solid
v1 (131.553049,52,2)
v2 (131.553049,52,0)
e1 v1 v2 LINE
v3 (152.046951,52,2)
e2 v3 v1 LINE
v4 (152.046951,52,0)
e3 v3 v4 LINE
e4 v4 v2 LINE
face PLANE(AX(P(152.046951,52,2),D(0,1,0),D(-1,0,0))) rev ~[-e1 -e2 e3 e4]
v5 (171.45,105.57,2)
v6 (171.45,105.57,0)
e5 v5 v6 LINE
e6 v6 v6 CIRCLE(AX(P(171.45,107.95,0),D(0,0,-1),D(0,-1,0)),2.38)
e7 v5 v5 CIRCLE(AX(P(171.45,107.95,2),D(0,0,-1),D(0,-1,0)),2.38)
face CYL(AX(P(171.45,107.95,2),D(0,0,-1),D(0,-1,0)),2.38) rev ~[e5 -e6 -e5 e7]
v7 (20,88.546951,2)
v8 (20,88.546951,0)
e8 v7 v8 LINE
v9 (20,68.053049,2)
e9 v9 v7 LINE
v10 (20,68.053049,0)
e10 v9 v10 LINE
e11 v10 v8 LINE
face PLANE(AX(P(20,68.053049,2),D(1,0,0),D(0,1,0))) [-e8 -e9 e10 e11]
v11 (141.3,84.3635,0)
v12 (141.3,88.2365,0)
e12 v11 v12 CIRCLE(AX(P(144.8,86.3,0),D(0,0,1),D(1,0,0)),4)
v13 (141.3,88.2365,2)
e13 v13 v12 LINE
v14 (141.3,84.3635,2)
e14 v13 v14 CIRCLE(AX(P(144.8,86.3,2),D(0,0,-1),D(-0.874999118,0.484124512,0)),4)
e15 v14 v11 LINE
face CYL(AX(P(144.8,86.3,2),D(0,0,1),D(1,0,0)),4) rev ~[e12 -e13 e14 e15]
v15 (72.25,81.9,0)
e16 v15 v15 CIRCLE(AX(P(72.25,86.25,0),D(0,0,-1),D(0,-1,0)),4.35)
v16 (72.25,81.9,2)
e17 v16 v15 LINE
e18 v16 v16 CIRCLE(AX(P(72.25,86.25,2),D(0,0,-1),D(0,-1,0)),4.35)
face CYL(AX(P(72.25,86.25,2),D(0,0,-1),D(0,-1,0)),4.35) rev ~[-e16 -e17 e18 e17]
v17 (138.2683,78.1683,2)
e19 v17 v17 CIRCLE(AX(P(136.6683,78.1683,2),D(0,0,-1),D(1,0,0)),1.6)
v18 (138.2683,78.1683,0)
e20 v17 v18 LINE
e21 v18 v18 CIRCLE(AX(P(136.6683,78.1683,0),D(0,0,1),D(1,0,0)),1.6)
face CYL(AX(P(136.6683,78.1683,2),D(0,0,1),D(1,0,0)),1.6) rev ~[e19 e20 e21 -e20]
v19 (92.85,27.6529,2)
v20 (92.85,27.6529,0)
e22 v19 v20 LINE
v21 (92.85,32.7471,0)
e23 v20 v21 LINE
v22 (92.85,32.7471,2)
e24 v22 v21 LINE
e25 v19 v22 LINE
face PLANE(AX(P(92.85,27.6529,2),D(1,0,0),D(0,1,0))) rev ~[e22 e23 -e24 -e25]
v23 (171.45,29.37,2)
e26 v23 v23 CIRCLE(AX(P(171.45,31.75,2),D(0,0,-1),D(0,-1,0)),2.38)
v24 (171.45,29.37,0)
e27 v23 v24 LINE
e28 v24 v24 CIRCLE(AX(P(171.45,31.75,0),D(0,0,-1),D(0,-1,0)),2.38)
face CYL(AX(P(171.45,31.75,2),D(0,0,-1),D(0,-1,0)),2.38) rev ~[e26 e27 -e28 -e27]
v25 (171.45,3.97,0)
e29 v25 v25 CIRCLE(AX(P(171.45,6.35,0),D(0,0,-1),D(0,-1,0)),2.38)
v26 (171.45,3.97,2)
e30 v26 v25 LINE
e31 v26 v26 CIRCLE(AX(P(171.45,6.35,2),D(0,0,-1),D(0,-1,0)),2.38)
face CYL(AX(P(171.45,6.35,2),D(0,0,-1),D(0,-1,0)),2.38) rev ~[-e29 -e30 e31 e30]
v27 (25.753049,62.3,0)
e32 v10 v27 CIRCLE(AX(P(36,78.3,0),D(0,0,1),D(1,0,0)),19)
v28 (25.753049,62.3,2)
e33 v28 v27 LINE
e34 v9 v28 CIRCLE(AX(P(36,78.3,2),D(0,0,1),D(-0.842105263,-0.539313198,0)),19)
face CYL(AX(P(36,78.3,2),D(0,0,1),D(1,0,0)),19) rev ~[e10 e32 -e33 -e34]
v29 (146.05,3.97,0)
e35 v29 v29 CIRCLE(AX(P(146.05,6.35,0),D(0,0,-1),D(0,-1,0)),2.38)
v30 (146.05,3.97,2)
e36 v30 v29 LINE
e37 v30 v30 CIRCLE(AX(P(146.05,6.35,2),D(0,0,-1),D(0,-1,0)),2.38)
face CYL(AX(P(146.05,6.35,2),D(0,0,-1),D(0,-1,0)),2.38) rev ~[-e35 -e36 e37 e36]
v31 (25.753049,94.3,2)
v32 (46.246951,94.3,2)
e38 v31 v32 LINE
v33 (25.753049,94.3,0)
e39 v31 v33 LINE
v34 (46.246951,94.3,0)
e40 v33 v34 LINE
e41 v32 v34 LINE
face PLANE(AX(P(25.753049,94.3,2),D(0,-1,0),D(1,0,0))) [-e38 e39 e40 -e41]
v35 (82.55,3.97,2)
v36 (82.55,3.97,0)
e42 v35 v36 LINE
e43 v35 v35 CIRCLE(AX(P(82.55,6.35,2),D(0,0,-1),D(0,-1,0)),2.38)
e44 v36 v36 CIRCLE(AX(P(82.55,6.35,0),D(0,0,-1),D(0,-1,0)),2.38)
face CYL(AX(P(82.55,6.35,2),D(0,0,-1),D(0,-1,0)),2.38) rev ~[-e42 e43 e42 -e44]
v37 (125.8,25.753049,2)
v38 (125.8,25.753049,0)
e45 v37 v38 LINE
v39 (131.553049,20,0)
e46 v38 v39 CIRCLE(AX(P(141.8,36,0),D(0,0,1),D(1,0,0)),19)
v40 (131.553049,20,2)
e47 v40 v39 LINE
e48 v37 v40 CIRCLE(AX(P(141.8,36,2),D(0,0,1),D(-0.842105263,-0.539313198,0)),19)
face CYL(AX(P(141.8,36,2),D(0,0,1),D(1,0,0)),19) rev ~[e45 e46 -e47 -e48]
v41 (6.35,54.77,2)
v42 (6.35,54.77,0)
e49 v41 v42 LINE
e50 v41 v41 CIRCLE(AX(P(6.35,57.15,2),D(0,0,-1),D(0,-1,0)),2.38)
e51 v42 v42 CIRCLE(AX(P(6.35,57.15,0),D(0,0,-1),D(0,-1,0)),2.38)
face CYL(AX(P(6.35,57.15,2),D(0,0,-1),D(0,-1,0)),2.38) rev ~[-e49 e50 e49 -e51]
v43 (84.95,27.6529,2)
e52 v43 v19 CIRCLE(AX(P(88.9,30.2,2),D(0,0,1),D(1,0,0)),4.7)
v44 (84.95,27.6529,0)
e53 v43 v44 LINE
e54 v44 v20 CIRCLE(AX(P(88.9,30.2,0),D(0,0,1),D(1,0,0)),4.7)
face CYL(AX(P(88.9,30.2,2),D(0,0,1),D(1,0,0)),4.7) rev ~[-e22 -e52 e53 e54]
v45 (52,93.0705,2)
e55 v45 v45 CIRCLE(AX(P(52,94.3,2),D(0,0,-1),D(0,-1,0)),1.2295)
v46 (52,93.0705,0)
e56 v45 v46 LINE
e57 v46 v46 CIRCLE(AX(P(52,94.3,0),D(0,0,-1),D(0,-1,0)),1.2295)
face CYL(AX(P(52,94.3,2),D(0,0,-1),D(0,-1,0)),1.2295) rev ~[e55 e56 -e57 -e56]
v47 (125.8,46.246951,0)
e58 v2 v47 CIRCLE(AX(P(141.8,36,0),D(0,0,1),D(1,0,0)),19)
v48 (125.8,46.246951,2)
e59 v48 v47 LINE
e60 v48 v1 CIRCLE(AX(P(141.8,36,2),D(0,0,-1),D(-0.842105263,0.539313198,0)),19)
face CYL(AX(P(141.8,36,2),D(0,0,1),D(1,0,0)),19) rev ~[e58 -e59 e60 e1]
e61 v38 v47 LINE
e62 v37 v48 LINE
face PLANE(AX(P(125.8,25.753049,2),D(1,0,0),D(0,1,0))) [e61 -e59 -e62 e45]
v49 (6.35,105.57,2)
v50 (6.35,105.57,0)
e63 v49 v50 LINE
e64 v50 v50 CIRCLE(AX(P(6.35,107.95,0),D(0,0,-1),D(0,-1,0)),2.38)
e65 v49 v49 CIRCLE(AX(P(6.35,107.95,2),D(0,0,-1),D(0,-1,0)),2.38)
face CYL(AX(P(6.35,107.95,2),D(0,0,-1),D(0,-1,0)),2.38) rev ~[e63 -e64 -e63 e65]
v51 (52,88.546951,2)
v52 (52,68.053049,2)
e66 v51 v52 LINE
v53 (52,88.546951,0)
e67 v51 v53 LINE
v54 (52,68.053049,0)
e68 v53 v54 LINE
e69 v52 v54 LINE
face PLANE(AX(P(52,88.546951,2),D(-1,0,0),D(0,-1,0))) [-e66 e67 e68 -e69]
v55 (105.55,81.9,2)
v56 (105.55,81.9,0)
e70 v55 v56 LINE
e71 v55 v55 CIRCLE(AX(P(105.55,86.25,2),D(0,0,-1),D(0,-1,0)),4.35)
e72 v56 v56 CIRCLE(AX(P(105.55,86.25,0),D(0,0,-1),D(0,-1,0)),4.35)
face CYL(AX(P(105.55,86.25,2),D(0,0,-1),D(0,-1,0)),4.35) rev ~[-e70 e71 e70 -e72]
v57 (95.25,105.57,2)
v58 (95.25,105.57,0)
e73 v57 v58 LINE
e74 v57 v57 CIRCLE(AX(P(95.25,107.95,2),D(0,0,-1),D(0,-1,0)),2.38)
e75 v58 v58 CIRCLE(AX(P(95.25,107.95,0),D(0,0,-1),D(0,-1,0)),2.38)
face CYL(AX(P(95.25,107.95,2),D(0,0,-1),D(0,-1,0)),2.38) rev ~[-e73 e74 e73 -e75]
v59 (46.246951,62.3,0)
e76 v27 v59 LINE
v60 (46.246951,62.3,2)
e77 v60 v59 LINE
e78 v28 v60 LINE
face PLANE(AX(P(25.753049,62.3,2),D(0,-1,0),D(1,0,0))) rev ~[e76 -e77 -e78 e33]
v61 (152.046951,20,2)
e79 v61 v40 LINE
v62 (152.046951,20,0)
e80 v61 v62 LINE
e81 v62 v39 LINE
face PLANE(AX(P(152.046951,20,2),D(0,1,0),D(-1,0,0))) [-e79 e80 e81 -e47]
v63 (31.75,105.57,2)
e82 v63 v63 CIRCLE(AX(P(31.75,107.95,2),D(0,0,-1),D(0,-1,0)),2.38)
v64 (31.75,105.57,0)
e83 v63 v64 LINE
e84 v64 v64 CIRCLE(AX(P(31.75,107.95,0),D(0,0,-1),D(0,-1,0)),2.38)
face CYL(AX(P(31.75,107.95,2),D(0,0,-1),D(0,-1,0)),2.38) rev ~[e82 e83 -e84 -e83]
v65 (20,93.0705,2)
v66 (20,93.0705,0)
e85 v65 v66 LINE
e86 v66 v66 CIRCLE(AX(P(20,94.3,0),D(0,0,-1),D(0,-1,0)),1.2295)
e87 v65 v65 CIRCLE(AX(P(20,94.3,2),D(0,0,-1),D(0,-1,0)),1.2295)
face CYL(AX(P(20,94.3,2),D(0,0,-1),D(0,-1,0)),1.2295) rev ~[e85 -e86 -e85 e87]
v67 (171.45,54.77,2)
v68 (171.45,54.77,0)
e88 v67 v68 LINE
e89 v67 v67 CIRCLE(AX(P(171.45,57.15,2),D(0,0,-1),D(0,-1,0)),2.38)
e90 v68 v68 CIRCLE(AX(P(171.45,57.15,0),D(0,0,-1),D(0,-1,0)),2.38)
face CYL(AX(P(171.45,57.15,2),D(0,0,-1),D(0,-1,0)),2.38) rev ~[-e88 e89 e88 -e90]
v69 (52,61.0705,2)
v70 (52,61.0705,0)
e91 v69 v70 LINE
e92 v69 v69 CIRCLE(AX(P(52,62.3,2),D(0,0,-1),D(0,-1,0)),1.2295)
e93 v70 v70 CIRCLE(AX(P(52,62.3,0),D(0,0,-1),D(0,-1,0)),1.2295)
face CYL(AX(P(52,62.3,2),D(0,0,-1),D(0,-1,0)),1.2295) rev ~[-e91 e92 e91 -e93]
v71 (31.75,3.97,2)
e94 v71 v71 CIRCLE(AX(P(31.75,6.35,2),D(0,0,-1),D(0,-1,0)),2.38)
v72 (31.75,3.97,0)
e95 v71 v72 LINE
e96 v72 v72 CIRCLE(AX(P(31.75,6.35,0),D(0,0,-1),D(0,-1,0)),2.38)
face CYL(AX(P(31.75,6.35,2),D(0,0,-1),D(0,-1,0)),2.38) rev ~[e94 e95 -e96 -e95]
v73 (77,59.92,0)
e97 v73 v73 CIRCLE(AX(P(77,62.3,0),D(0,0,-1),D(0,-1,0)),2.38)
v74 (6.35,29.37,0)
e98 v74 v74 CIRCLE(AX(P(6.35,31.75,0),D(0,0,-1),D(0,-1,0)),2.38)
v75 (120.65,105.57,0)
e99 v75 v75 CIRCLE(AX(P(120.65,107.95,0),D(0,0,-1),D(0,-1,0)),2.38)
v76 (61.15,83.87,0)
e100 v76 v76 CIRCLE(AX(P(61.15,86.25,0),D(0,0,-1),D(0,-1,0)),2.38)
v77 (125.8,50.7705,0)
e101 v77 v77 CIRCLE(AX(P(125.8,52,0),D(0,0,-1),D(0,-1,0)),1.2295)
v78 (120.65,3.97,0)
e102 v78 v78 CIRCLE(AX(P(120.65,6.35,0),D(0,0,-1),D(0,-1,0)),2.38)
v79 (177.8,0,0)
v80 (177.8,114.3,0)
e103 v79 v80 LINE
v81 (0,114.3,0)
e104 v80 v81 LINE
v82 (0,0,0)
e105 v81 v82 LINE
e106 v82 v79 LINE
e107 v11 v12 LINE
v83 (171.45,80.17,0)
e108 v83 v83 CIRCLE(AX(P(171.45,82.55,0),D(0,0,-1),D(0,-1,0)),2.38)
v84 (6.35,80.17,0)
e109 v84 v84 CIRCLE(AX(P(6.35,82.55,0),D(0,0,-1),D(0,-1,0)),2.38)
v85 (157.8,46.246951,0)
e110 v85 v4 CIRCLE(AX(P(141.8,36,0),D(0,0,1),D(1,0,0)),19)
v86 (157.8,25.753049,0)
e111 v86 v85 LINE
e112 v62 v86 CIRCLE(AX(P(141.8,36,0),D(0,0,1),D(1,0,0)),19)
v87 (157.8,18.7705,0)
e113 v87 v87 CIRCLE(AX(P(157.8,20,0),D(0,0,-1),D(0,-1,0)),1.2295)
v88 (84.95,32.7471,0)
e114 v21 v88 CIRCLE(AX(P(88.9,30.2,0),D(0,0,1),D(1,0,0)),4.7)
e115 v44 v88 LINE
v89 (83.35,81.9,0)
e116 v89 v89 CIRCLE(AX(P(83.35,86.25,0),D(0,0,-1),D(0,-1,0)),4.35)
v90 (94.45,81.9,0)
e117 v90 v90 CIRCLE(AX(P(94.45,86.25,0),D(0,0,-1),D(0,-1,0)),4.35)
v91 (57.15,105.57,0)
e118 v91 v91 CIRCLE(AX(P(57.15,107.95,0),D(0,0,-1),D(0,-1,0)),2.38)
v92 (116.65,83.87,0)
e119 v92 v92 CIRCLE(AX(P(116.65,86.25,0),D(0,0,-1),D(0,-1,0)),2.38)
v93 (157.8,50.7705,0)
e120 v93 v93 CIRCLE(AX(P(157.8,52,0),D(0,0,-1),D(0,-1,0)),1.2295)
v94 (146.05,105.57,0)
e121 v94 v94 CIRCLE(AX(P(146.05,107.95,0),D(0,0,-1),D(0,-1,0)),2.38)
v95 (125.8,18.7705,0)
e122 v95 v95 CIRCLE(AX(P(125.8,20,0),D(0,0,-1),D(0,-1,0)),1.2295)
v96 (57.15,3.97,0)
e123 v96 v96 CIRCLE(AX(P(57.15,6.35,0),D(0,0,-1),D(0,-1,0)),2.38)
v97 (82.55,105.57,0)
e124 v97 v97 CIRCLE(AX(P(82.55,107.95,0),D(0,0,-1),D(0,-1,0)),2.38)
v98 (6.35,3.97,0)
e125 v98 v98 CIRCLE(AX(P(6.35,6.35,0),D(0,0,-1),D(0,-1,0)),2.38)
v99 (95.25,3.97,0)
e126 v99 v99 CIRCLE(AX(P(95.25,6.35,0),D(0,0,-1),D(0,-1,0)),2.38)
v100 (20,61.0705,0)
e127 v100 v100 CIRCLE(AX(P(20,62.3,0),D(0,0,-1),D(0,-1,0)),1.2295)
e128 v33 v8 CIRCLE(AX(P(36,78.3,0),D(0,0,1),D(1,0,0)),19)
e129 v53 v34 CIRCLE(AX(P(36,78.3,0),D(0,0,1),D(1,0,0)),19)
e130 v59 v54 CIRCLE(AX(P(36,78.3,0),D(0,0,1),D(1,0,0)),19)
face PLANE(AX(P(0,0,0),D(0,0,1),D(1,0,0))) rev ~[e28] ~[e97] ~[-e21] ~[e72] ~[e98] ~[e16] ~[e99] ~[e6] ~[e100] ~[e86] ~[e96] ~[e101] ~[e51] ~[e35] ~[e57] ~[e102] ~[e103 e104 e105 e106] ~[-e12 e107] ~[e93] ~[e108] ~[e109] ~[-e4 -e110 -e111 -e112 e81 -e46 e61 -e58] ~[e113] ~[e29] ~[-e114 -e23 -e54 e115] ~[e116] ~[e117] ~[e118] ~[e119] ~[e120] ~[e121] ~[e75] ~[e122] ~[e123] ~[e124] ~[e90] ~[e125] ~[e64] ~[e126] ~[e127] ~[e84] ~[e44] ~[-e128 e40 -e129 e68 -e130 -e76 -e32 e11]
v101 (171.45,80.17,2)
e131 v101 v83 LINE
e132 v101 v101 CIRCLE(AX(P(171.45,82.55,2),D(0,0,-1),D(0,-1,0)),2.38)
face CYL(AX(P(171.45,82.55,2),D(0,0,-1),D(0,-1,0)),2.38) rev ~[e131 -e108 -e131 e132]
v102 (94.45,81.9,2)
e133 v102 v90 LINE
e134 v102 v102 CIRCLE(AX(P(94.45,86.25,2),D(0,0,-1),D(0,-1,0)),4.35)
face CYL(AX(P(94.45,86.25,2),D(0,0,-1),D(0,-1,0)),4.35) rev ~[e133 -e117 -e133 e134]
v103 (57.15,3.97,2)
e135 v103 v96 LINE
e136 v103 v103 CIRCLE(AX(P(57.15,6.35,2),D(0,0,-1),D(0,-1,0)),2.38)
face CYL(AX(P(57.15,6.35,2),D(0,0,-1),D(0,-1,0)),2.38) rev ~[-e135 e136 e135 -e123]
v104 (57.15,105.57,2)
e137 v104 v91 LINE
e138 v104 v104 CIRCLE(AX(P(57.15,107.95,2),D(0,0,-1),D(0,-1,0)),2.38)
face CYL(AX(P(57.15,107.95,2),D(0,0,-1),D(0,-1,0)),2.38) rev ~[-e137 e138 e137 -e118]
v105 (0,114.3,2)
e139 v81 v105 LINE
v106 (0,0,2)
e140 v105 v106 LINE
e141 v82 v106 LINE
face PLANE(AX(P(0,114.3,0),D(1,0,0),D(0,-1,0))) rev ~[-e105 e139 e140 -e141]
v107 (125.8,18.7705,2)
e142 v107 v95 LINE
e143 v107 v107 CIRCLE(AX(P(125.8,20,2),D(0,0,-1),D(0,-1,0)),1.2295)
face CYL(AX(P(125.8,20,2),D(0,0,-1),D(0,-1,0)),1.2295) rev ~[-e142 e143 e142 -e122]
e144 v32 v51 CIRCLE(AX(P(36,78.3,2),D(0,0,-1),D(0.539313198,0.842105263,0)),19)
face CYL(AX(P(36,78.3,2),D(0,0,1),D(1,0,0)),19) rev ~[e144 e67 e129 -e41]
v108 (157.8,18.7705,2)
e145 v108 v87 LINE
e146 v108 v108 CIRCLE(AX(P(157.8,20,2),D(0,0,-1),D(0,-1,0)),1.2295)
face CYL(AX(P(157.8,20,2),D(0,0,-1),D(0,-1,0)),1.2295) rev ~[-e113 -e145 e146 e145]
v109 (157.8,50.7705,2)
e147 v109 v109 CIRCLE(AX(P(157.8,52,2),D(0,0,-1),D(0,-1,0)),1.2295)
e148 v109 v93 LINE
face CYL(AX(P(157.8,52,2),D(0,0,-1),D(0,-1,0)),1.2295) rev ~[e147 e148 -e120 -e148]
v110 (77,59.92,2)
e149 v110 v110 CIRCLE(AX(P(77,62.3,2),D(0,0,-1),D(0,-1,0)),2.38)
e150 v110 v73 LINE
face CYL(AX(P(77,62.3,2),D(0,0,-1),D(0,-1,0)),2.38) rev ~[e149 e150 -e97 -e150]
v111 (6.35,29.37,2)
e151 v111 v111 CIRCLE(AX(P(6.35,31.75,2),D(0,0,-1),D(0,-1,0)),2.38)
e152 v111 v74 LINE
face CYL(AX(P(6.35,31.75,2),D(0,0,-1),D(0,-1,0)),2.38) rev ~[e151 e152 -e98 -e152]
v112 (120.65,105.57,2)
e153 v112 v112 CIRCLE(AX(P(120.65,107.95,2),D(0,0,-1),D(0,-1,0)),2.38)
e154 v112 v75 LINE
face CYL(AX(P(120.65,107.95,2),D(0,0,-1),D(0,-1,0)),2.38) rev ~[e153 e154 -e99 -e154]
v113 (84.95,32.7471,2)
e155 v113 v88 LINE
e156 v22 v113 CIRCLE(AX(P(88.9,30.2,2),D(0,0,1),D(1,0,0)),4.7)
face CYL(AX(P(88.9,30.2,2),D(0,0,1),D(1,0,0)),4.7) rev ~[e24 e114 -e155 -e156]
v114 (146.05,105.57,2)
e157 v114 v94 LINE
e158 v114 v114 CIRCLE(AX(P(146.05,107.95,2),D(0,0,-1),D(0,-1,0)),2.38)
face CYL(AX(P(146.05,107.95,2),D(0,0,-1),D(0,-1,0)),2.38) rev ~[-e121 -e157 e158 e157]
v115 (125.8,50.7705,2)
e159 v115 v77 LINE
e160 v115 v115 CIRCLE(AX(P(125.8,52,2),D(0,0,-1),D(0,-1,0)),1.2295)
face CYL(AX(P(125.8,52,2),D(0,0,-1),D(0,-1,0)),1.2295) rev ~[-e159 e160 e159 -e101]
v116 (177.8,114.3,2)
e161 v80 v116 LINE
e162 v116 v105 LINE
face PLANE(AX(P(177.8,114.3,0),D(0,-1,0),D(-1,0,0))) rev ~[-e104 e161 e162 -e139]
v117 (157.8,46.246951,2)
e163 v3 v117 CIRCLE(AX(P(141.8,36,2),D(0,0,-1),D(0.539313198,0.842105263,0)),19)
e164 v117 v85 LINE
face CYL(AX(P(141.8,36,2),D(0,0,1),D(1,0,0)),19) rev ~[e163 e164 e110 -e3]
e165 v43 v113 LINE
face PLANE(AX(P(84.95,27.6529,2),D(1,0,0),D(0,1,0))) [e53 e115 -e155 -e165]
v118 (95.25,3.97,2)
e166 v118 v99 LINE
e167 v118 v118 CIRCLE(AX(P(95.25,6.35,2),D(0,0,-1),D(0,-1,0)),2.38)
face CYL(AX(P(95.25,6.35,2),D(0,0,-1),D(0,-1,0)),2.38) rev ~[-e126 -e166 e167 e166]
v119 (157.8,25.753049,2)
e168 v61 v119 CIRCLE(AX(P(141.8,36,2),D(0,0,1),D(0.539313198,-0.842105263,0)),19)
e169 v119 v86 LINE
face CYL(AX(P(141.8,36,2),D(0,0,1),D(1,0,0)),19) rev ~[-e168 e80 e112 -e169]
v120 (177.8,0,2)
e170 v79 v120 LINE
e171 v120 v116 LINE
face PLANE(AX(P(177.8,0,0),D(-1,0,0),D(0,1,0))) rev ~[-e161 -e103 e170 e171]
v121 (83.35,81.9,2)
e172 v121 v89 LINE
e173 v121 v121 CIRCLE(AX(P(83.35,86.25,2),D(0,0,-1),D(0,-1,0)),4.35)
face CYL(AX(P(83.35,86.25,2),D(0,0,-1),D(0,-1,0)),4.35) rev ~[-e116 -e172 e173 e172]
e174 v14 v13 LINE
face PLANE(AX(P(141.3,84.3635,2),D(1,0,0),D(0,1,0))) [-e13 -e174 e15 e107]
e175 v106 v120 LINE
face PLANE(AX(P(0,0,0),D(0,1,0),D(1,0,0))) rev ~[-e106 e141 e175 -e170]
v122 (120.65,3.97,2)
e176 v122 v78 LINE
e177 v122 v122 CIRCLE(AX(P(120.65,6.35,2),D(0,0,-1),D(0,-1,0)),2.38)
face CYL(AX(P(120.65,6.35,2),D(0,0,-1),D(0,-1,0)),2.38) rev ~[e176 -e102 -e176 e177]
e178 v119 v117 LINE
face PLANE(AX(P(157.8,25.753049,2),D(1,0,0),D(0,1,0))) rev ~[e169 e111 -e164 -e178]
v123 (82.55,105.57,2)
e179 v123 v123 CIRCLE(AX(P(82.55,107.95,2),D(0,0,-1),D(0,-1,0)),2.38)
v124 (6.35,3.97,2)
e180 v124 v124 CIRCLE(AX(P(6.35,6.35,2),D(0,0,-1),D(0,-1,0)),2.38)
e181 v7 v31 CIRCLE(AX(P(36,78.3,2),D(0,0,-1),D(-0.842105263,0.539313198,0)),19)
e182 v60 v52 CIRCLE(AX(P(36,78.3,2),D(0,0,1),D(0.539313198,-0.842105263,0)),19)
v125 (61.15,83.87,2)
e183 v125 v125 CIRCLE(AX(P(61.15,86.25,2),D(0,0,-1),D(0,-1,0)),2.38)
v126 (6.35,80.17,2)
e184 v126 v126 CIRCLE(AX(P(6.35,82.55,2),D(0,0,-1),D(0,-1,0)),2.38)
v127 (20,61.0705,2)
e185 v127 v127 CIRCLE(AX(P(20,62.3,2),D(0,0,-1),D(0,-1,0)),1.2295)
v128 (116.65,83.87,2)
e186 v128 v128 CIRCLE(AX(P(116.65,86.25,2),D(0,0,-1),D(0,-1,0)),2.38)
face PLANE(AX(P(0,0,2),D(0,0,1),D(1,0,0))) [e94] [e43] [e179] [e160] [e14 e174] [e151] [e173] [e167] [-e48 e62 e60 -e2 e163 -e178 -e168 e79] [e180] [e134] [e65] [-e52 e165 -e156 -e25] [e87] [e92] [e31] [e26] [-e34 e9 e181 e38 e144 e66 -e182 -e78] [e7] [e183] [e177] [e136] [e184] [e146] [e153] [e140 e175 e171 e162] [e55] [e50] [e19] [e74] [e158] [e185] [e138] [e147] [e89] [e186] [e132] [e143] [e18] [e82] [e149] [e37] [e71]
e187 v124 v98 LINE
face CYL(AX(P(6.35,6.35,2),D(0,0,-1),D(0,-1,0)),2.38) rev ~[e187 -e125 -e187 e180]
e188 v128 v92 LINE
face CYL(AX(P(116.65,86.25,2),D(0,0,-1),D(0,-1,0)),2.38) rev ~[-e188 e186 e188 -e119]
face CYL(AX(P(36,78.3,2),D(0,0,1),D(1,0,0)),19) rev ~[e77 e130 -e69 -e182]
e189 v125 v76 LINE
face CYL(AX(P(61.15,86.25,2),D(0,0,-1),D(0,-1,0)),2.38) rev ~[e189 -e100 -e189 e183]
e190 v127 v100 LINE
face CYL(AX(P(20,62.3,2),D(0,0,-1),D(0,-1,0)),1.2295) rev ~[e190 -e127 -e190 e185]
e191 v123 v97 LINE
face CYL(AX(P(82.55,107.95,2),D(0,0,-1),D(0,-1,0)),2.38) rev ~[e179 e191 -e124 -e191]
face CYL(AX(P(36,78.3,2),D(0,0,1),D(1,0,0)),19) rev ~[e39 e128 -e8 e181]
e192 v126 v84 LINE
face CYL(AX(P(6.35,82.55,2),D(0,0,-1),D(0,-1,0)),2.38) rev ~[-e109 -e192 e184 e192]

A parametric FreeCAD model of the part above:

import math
import FreeCAD as App
import Part
import Sketcher
Q = App.Units.Quantity

doc = App.newDocument("Part")
params = doc.addObject("Spreadsheet::Sheet", "Params")
for row, (alias, value) in enumerate([
    ("sketch1_width", "177.8 mm"),
    ("sketch1_height", "114.3 mm"),
    ("pad1_length", "2 mm"),
    ("sketch2_diameter", "4.76 mm"),
    ("hole_diameter", "4.76 mm"),
    ("sketch3_diameter", "8.7 mm"),
    ("hole2_diameter", "8.7 mm"),
    ("sketch4_diameter", "4.76 mm"),
    ("hole3_diameter", "4.76 mm"),
    ("sketch5_radius", "4.7 mm"),
    ("sketch6_radius", "4 mm"),
    ("sketch6_diameter", "3.2 mm"),
    ("hole4_diameter", "2.459 mm"),
    ("hole5_diameter", "2.459 mm"),
    ("sketch9_diameter", "4.76 mm"),
    ("hole6_diameter", "4.76 mm"),
    ("sketch10_radius", "19 mm"),
    ("pocket3_length", "10 mm"),
], start=1):
    params.set(f"A{row}", alias)
    params.set(f"B{row}", "=" + value)
    params.setAlias(f"B{row}", alias)

body = doc.addObject("PartDesign::Body", "Body")

sketch1 = body.newObject("Sketcher::SketchObject", "Sketch")
sketch1.AttachmentSupport = (doc.getObject("XY_Plane"), [""])
sketch1.MapMode = "FlatFace"
sketch1.addGeometry([
    Part.LineSegment(App.Vector(0, 114.3, 0), App.Vector(0, 0, 0)),
    Part.LineSegment(App.Vector(0, 0, 0), App.Vector(177.8, 0, 0)),
    Part.LineSegment(App.Vector(177.8, 0, 0), App.Vector(177.8, 114.3, 0)),
    Part.LineSegment(App.Vector(177.8, 114.3, 0), App.Vector(0, 114.3, 0)),
], False)
sketch1.addConstraint([
    Sketcher.Constraint("Coincident", 0, 2, 1, 1),
    Sketcher.Constraint("Coincident", 1, 2, 2, 1),
    Sketcher.Constraint("Coincident", 2, 2, 3, 1),
    Sketcher.Constraint("Coincident", 3, 2, 0, 1),
    Sketcher.Constraint("Vertical", 0),
    Sketcher.Constraint("Horizontal", 1),
    Sketcher.Constraint("Vertical", 2),
    Sketcher.Constraint("Horizontal", 3),
    Sketcher.Constraint("Coincident", 0, 2, -1, 1),
    Sketcher.Constraint("DistanceX", 1, 1, 1, 2, Q("177.8 mm")),
    Sketcher.Constraint("DistanceY", 0, 2, 0, 1, Q("114.3 mm")),
])
sketch1.setExpression("Constraints[9]", "Params.sketch1_width")
sketch1.setExpression("Constraints[10]", "Params.sketch1_height")
pad1 = body.newObject("PartDesign::Pad", "Pad")
pad1.Profile = sketch1
pad1.setExpression("Length", "Params.pad1_length")

sketch2 = body.newObject("Sketcher::SketchObject", "Sketch001")
sketch2.AttachmentSupport = (doc.getObject("XY_Plane"), [""])
sketch2.MapMode = "FlatFace"
sketch2.AttachmentOffset = App.Placement(App.Vector(0, 0, 2), App.Rotation())
sketch2.addGeometry([
    Part.Circle(App.Vector(6.35, 107.95, 0), App.Vector(0, 0, 1), 2.38),
    Part.Circle(App.Vector(6.35, 82.55, 0), App.Vector(0, 0, 1), 2.38),
    Part.Circle(App.Vector(6.35, 57.15, 0), App.Vector(0, 0, 1), 2.38),
    Part.Circle(App.Vector(6.35, 31.75, 0), App.Vector(0, 0, 1), 2.38),
    Part.Circle(App.Vector(6.35, 6.35, 0), App.Vector(0, 0, 1), 2.38),
    Part.Circle(App.Vector(31.75, 6.35, 0), App.Vector(0, 0, 1), 2.38),
    Part.Circle(App.Vector(57.15, 6.35, 0), App.Vector(0, 0, 1), 2.38),
    Part.Circle(App.Vector(82.55, 6.35, 0), App.Vector(0, 0, 1), 2.38),
    Part.Circle(App.Vector(95.25, 6.35, 0), App.Vector(0, 0, 1), 2.38),
    Part.Circle(App.Vector(146.05, 6.35, 0), App.Vector(0, 0, 1), 2.38),
    Part.Circle(App.Vector(120.65, 6.35, 0), App.Vector(0, 0, 1), 2.38),
    Part.Circle(App.Vector(171.45, 6.35, 0), App.Vector(0, 0, 1), 2.38),
    Part.Circle(App.Vector(171.45, 31.75, 0), App.Vector(0, 0, 1), 2.38),
    Part.Circle(App.Vector(171.45, 57.15, 0), App.Vector(0, 0, 1), 2.38),
    Part.Circle(App.Vector(171.45, 82.55, 0), App.Vector(0, 0, 1), 2.38),
    Part.Circle(App.Vector(171.45, 107.95, 0), App.Vector(0, 0, 1), 2.38),
    Part.Circle(App.Vector(120.65, 107.95, 0), App.Vector(0, 0, 1), 2.38),
    Part.Circle(App.Vector(146.05, 107.95, 0), App.Vector(0, 0, 1), 2.38),
    Part.Circle(App.Vector(95.25, 107.95, 0), App.Vector(0, 0, 1), 2.38),
    Part.Circle(App.Vector(82.55, 107.95, 0), App.Vector(0, 0, 1), 2.38),
    Part.Circle(App.Vector(57.15, 107.95, 0), App.Vector(0, 0, 1), 2.38),
    Part.Circle(App.Vector(31.75, 107.95, 0), App.Vector(0, 0, 1), 2.38),
], False)
sketch2.addConstraint([
    Sketcher.Constraint("Equal", 0, 1),
    Sketcher.Constraint("Equal", 1, 2),
    Sketcher.Constraint("Equal", 2, 3),
    Sketcher.Constraint("Equal", 3, 4),
    Sketcher.Constraint("Equal", 4, 5),
    Sketcher.Constraint("Equal", 5, 6),
    Sketcher.Constraint("Equal", 6, 7),
    Sketcher.Constraint("Equal", 7, 8),
    Sketcher.Constraint("Equal", 8, 9),
    Sketcher.Constraint("Equal", 9, 10),
    Sketcher.Constraint("Equal", 10, 11),
    Sketcher.Constraint("Equal", 11, 12),
    Sketcher.Constraint("Equal", 12, 13),
    Sketcher.Constraint("Equal", 13, 14),
    Sketcher.Constraint("Equal", 14, 15),
    Sketcher.Constraint("Equal", 15, 16),
    Sketcher.Constraint("Equal", 16, 17),
    Sketcher.Constraint("Equal", 17, 18),
    Sketcher.Constraint("Equal", 18, 19),
    Sketcher.Constraint("Equal", 19, 20),
    Sketcher.Constraint("Equal", 20, 21),
    Sketcher.Constraint("Horizontal", 4, 3, 5, 3),
    Sketcher.Constraint("Horizontal", 5, 3, 6, 3),
    Sketcher.Constraint("Horizontal", 6, 3, 7, 3),
    Sketcher.Constraint("Horizontal", 7, 3, 8, 3),
    Sketcher.Constraint("Horizontal", 8, 3, 9, 3),
    Sketcher.Constraint("Horizontal", 9, 3, 10, 3),
    Sketcher.Constraint("Horizontal", 10, 3, 11, 3),
    Sketcher.Constraint("Horizontal", 3, 3, 12, 3),
    Sketcher.Constraint("Horizontal", 2, 3, 13, 3),
    Sketcher.Constraint("Horizontal", 1, 3, 14, 3),
    Sketcher.Constraint("Horizontal", 0, 3, 15, 3),
    Sketcher.Constraint("Horizontal", 15, 3, 16, 3),
    Sketcher.Constraint("Horizontal", 16, 3, 17, 3),
    Sketcher.Constraint("Horizontal", 17, 3, 18, 3),
    Sketcher.Constraint("Horizontal", 18, 3, 19, 3),
    Sketcher.Constraint("Horizontal", 19, 3, 20, 3),
    Sketcher.Constraint("Horizontal", 20, 3, 21, 3),
    Sketcher.Constraint("Vertical", 0, 3, 1, 3),
    Sketcher.Constraint("Vertical", 1, 3, 2, 3),
    Sketcher.Constraint("Vertical", 2, 3, 3, 3),
    Sketcher.Constraint("Vertical", 3, 3, 4, 3),
    Sketcher.Constraint("Vertical", 11, 3, 12, 3),
    Sketcher.Constraint("Vertical", 12, 3, 13, 3),
    Sketcher.Constraint("Vertical", 13, 3, 14, 3),
    Sketcher.Constraint("Vertical", 14, 3, 15, 3),
    Sketcher.Constraint("Vertical", 10, 3, 16, 3),
    Sketcher.Constraint("Vertical", 9, 3, 17, 3),
    Sketcher.Constraint("Vertical", 8, 3, 18, 3),
    Sketcher.Constraint("Vertical", 7, 3, 19, 3),
    Sketcher.Constraint("Vertical", 6, 3, 20, 3),
    Sketcher.Constraint("Vertical", 5, 3, 21, 3),
    Sketcher.Constraint("Diameter", 0, Q("4.76 mm")),
    Sketcher.Constraint("DistanceY", 1, 3, 0, 3, Q("25.4 mm")),
    Sketcher.Constraint("DistanceY", 2, 3, 1, 3, Q("25.4 mm")),
    Sketcher.Constraint("DistanceY", 3, 3, 2, 3, Q("25.4 mm")),
    Sketcher.Constraint("DistanceY", 4, 3, 3, 3, Q("25.4 mm")),
    Sketcher.Constraint("DistanceX", 4, 3, 5, 3, Q("25.4 mm")),
    Sketcher.Constraint("DistanceX", 5, 3, 6, 3, Q("25.4 mm")),
    Sketcher.Constraint("DistanceX", 6, 3, 7, 3, Q("25.4 mm")),
    Sketcher.Constraint("DistanceX", 7, 3, 8, 3, Q("12.7 mm")),
    Sketcher.Constraint("DistanceX", 8, 3, 9, 3, Q("50.8 mm")),
    Sketcher.Constraint("DistanceX", 8, 3, 10, 3, Q("25.4 mm")),
    Sketcher.Constraint("DistanceX", 9, 3, 11, 3, Q("25.4 mm")),
    Sketcher.Constraint("DistanceX", -1, 1, 0, 3, Q("6.35 mm")),
    Sketcher.Constraint("DistanceY", -1, 1, 0, 3, Q("107.95 mm")),
])
sketch2.setExpression("Constraints[52]", "Params.sketch2_diameter")
doc.recompute()
hole = body.newObject("PartDesign::Hole", "Hole")
hole.Profile = sketch2
hole.ThreadType = "None"
hole.setExpression("Diameter", "Params.hole_diameter")
hole.DepthType = "ThroughAll"

sketch3 = body.newObject("Sketcher::SketchObject", "Sketch002")
sketch3.AttachmentSupport = (doc.getObject("XY_Plane"), [""])
sketch3.MapMode = "FlatFace"
sketch3.AttachmentOffset = App.Placement(App.Vector(0, 0, 2), App.Rotation())
sketch3.addGeometry([
    Part.Circle(App.Vector(83.35, 86.25, 0), App.Vector(0, 0, 1), 4.35),
    Part.Circle(App.Vector(94.45, 86.25, 0), App.Vector(0, 0, 1), 4.35),
    Part.Circle(App.Vector(105.55, 86.25, 0), App.Vector(0, 0, 1), 4.35),
    Part.Circle(App.Vector(72.25, 86.25, 0), App.Vector(0, 0, 1), 4.35),
], False)
sketch3.addConstraint([
    Sketcher.Constraint("Equal", 0, 1),
    Sketcher.Constraint("Equal", 1, 2),
    Sketcher.Constraint("Equal", 2, 3),
    Sketcher.Constraint("Horizontal", 0, 3, 1, 3),
    Sketcher.Constraint("Horizontal", 1, 3, 2, 3),
    Sketcher.Constraint("Horizontal", 2, 3, 3, 3),
    Sketcher.Constraint("Diameter", 0, Q("8.7 mm")),
    Sketcher.Constraint("DistanceX", 0, 3, 1, 3, Q("11.1 mm")),
    Sketcher.Constraint("DistanceX", 1, 3, 2, 3, Q("11.1 mm")),
    Sketcher.Constraint("DistanceX", 3, 3, 0, 3, Q("11.1 mm")),
    Sketcher.Constraint("DistanceX", -1, 1, 0, 3, Q("83.35 mm")),
    Sketcher.Constraint("DistanceY", -1, 1, 0, 3, Q("86.25 mm")),
])
sketch3.setExpression("Constraints[6]", "Params.sketch3_diameter")
doc.recompute()
hole2 = body.newObject("PartDesign::Hole", "Hole001")
hole2.Profile = sketch3
hole2.ThreadType = "None"
hole2.setExpression("Diameter", "Params.hole2_diameter")
hole2.DepthType = "ThroughAll"

sketch4 = body.newObject("Sketcher::SketchObject", "Sketch003")
sketch4.AttachmentSupport = (doc.getObject("XY_Plane"), [""])
sketch4.MapMode = "FlatFace"
sketch4.AttachmentOffset = App.Placement(App.Vector(0, 0, 2), App.Rotation())
sketch4.addGeometry([
    Part.Circle(App.Vector(116.65, 86.25, 0), App.Vector(0, 0, 1), 2.38),
    Part.Circle(App.Vector(61.15, 86.25, 0), App.Vector(0, 0, 1), 2.38),
], False)
sketch4.addConstraint([
    Sketcher.Constraint("Equal", 0, 1),
    Sketcher.Constraint("Horizontal", 0, 3, 1, 3),
    Sketcher.Constraint("Diameter", 0, Q("4.76 mm")),
    Sketcher.Constraint("DistanceX", 1, 3, 0, 3, Q("55.5 mm")),
    Sketcher.Constraint("DistanceX", -1, 1, 0, 3, Q("116.65 mm")),
    Sketcher.Constraint("DistanceY", -1, 1, 0, 3, Q("86.25 mm")),
])
sketch4.setExpression("Constraints[2]", "Params.sketch4_diameter")
doc.recompute()
hole3 = body.newObject("PartDesign::Hole", "Hole002")
hole3.Profile = sketch4
hole3.ThreadType = "None"
hole3.setExpression("Diameter", "Params.hole3_diameter")
hole3.DepthType = "ThroughAll"

sketch5 = body.newObject("Sketcher::SketchObject", "Sketch004")
sketch5.AttachmentSupport = (doc.getObject("XY_Plane"), [""])
sketch5.MapMode = "FlatFace"
sketch5.AttachmentOffset = App.Placement(App.Vector(0, 0, 2), App.Rotation())
sketch5.addGeometry([
    Part.LineSegment(App.Vector(92.85, 27.6529, 0), App.Vector(92.85, 32.7471, 0)),
    Part.ArcOfCircle(Part.Circle(App.Vector(88.9, 30.2, 0), App.Vector(0, 0, 1), 4.7), math.radians(32.815357), math.radians(147.184643)),
    Part.LineSegment(App.Vector(84.95, 32.7471, 0), App.Vector(84.95, 27.6529, 0)),
    Part.ArcOfCircle(Part.Circle(App.Vector(88.9, 30.2, 0), App.Vector(0, 0, 1), 4.7), math.radians(-147.184643), math.radians(-32.815357)),
], False)
sketch5.addConstraint([
    Sketcher.Constraint("Coincident", 0, 2, 1, 1),
    Sketcher.Constraint("Coincident", 1, 2, 2, 1),
    Sketcher.Constraint("Coincident", 2, 2, 3, 1),
    Sketcher.Constraint("Coincident", 3, 2, 0, 1),
    Sketcher.Constraint("Vertical", 0),
    Sketcher.Constraint("Vertical", 2),
    Sketcher.Constraint("Coincident", 3, 3, 1, 3),
    Sketcher.Constraint("Equal", 1, 3),
    Sketcher.Constraint("Horizontal", 0, 2, 1, 2),
    Sketcher.Constraint("Radius", 1, Q("4.7 mm")),
    Sketcher.Constraint("DistanceY", -1, 1, 1, 3, Q("30.2 mm")),
    Sketcher.Constraint("DistanceX", 1, 2, 0, 2, Q("7.9 mm")),
    Sketcher.Constraint("DistanceX", -1, 1, 1, 3, Q("88.9 mm")),
])
sketch5.setExpression("Constraints[9]", "Params.sketch5_radius")
pocket1 = body.newObject("PartDesign::Pocket", "Pocket")
pocket1.Profile = sketch5
pocket1.Type = "ThroughAll"

sketch6 = body.newObject("Sketcher::SketchObject", "Sketch005")
sketch6.AttachmentSupport = (doc.getObject("XY_Plane"), [""])
sketch6.MapMode = "FlatFace"
sketch6.AttachmentOffset = App.Placement(App.Vector(0, 0, 2), App.Rotation())
sketch6.addGeometry([
    Part.Circle(App.Vector(136.6683, 78.1683, 0), App.Vector(0, 0, 1), 1.6),
    Part.LineSegment(App.Vector(141.3, 88.2365, 0), App.Vector(141.3, 84.3635, 0)),
    Part.ArcOfCircle(Part.Circle(App.Vector(144.8, 86.3, 0), App.Vector(0, 0, 1), 4), math.radians(-151.044871), math.radians(151.044871)),
], False)
sketch6.addConstraint([
    Sketcher.Constraint("Coincident", 1, 1, 2, 2),
    Sketcher.Constraint("Coincident", 2, 1, 1, 2),
    Sketcher.Constraint("Vertical", 1),
    Sketcher.Constraint("Radius", 2, Q("4 mm")),
    Sketcher.Constraint("Diameter", 0, Q("3.2 mm")),
    Sketcher.Constraint("DistanceX", -1, 1, 2, 3, Q("144.8 mm")),
    Sketcher.Constraint("DistanceY", -1, 1, 2, 3, Q("86.3 mm")),
    Sketcher.Constraint("DistanceX", -1, 1, 1, 1, Q("141.3 mm")),
    Sketcher.Constraint("DistanceX", -1, 1, 0, 3, Q("136.6683 mm")),
    Sketcher.Constraint("DistanceY", -1, 1, 0, 3, Q("78.1683 mm")),
])
sketch6.setExpression("Constraints[3]", "Params.sketch6_radius")
sketch6.setExpression("Constraints[4]", "Params.sketch6_diameter")
pocket2 = body.newObject("PartDesign::Pocket", "Pocket001")
pocket2.Profile = sketch6
pocket2.Type = "ThroughAll"

sketch7 = body.newObject("Sketcher::SketchObject", "Sketch006")
sketch7.AttachmentSupport = (doc.getObject("XY_Plane"), [""])
sketch7.MapMode = "FlatFace"
sketch7.AttachmentOffset = App.Placement(App.Vector(0, 0, 2), App.Rotation())
sketch7.addGeometry([
    Part.Circle(App.Vector(125.8, 52, 0), App.Vector(0, 0, 1), 1.2295),
    Part.Circle(App.Vector(157.8, 52, 0), App.Vector(0, 0, 1), 1.2295),
    Part.Circle(App.Vector(157.8, 20, 0), App.Vector(0, 0, 1), 1.2295),
    Part.Circle(App.Vector(125.8, 20, 0), App.Vector(0, 0, 1), 1.2295),
], False)
sketch7.addConstraint([
    Sketcher.Constraint("Equal", 0, 1),
    Sketcher.Constraint("Equal", 1, 2),
    Sketcher.Constraint("Equal", 2, 3),
    Sketcher.Constraint("Horizontal", 0, 3, 1, 3),
    Sketcher.Constraint("Horizontal", 2, 3, 3, 3),
    Sketcher.Constraint("Vertical", 1, 3, 2, 3),
    Sketcher.Constraint("Vertical", 0, 3, 3, 3),
    Sketcher.Constraint("Diameter", 0, Q("2.459 mm")),
    Sketcher.Constraint("DistanceY", -1, 1, 0, 3, Q("52 mm")),
    Sketcher.Constraint("DistanceY", -1, 1, 2, 3, Q("20 mm")),
    Sketcher.Constraint("DistanceX", 0, 3, 1, 3, Q("32 mm")),
    Sketcher.Constraint("DistanceX", -1, 1, 0, 3, Q("125.8 mm")),
])
doc.recompute()
hole4 = body.newObject("PartDesign::Hole", "Hole003")
hole4.Profile = sketch7
hole4.ThreadType = "None"
hole4.setExpression("Diameter", "Params.hole4_diameter")
hole4.DepthType = "ThroughAll"

sketch8 = body.newObject("Sketcher::SketchObject", "Sketch007")
sketch8.AttachmentSupport = (doc.getObject("XY_Plane"), [""])
sketch8.MapMode = "FlatFace"
sketch8.AttachmentOffset = App.Placement(App.Vector(0, 0, 2), App.Rotation())
sketch8.addGeometry([
    Part.Circle(App.Vector(20, 94.3, 0), App.Vector(0, 0, 1), 1.2295),
    Part.Circle(App.Vector(52, 94.3, 0), App.Vector(0, 0, 1), 1.2295),
    Part.Circle(App.Vector(52, 62.3, 0), App.Vector(0, 0, 1), 1.2295),
    Part.Circle(App.Vector(20, 62.3, 0), App.Vector(0, 0, 1), 1.2295),
], False)
sketch8.addConstraint([
    Sketcher.Constraint("Equal", 0, 1),
    Sketcher.Constraint("Equal", 1, 2),
    Sketcher.Constraint("Equal", 2, 3),
    Sketcher.Constraint("Horizontal", 0, 3, 1, 3),
    Sketcher.Constraint("Horizontal", 2, 3, 3, 3),
    Sketcher.Constraint("Vertical", 1, 3, 2, 3),
    Sketcher.Constraint("Vertical", 0, 3, 3, 3),
    Sketcher.Constraint("Diameter", 0, Q("2.459 mm")),
    Sketcher.Constraint("DistanceX", -1, 1, 0, 3, Q("20 mm")),
    Sketcher.Constraint("DistanceX", -1, 1, 1, 3, Q("52 mm")),
    Sketcher.Constraint("DistanceY", 2, 3, 1, 3, Q("32 mm")),
    Sketcher.Constraint("DistanceY", -1, 1, 0, 3, Q("94.3 mm")),
])
doc.recompute()
hole5 = body.newObject("PartDesign::Hole", "Hole004")
hole5.Profile = sketch8
hole5.ThreadType = "None"
hole5.setExpression("Diameter", "Params.hole5_diameter")
hole5.DepthType = "ThroughAll"

sketch9 = body.newObject("Sketcher::SketchObject", "Sketch008")
sketch9.AttachmentSupport = (doc.getObject("XY_Plane"), [""])
sketch9.MapMode = "FlatFace"
sketch9.AttachmentOffset = App.Placement(App.Vector(0, 0, 2), App.Rotation())
sketch9.addGeometry(Part.Circle(App.Vector(77, 62.3, 0), App.Vector(0, 0, 1), 2.38), False)
sketch9.addConstraint([
    Sketcher.Constraint("Diameter", 0, Q("4.76 mm")),
    Sketcher.Constraint("DistanceX", -1, 1, 0, 3, Q("77 mm")),
    Sketcher.Constraint("DistanceY", -1, 1, 0, 3, Q("62.3 mm")),
])
sketch9.setExpression("Constraints[0]", "Params.sketch9_diameter")
doc.recompute()
hole6 = body.newObject("PartDesign::Hole", "Hole005")
hole6.Profile = sketch9
hole6.ThreadType = "None"
hole6.setExpression("Diameter", "Params.hole6_diameter")
hole6.DepthType = "ThroughAll"

sketch10 = body.newObject("Sketcher::SketchObject", "Sketch009")
sketch10.AttachmentSupport = (doc.getObject("XY_Plane"), [""])
sketch10.MapMode = "FlatFace"
sketch10.AttachmentOffset = App.Placement(App.Vector(0, 0, 2), App.Rotation())
sketch10.addGeometry([
    Part.LineSegment(App.Vector(46.246951, 94.3, 0), App.Vector(25.753049, 94.3, 0)),
    Part.ArcOfCircle(Part.Circle(App.Vector(36, 78.3, 0), App.Vector(0, 0, 1), 19), math.radians(122.636898), math.radians(147.363102)),
    Part.LineSegment(App.Vector(20, 88.546951, 0), App.Vector(20, 68.053049, 0)),
    Part.ArcOfCircle(Part.Circle(App.Vector(36, 78.3, 0), App.Vector(0, 0, 1), 19), math.radians(-147.363102), math.radians(-122.636898)),
    Part.LineSegment(App.Vector(25.753049, 62.3, 0), App.Vector(46.246951, 62.3, 0)),
    Part.ArcOfCircle(Part.Circle(App.Vector(36, 78.3, 0), App.Vector(0, 0, 1), 19), math.radians(-57.363102), math.radians(-32.636898)),
    Part.LineSegment(App.Vector(52, 68.053049, 0), App.Vector(52, 88.546951, 0)),
    Part.ArcOfCircle(Part.Circle(App.Vector(36, 78.3, 0), App.Vector(0, 0, 1), 19), math.radians(32.636898), math.radians(57.363102)),
    Part.LineSegment(App.Vector(152.046951, 52, 0), App.Vector(131.553049, 52, 0)),
    Part.ArcOfCircle(Part.Circle(App.Vector(141.8, 36, 0), App.Vector(0, 0, 1), 19), math.radians(122.636898), math.radians(147.363102)),
    Part.LineSegment(App.Vector(125.8, 46.246951, 0), App.Vector(125.8, 25.753049, 0)),
    Part.ArcOfCircle(Part.Circle(App.Vector(141.8, 36, 0), App.Vector(0, 0, 1), 19), math.radians(-147.363102), math.radians(-122.636898)),
    Part.LineSegment(App.Vector(131.553049, 20, 0), App.Vector(152.046951, 20, 0)),
    Part.ArcOfCircle(Part.Circle(App.Vector(141.8, 36, 0), App.Vector(0, 0, 1), 19), math.radians(-57.363102), math.radians(-32.636898)),
    Part.LineSegment(App.Vector(157.8, 25.753049, 0), App.Vector(157.8, 46.246951, 0)),
    Part.ArcOfCircle(Part.Circle(App.Vector(141.8, 36, 0), App.Vector(0, 0, 1), 19), math.radians(32.636898), math.radians(57.363102)),
], False)
sketch10.addConstraint([
    Sketcher.Constraint("Coincident", 0, 2, 1, 1),
    Sketcher.Constraint("Coincident", 1, 2, 2, 1),
    Sketcher.Constraint("Coincident", 2, 2, 3, 1),
    Sketcher.Constraint("Coincident", 3, 2, 4, 1),
    Sketcher.Constraint("Coincident", 4, 2, 5, 1),
    Sketcher.Constraint("Coincident", 5, 2, 6, 1),
    Sketcher.Constraint("Coincident", 6, 2, 7, 1),
    Sketcher.Constraint("Coincident", 7, 2, 0, 1),
    Sketcher.Constraint("Coincident", 8, 2, 9, 1),
    Sketcher.Constraint("Coincident", 9, 2, 10, 1),
    Sketcher.Constraint("Coincident", 10, 2, 11, 1),
    Sketcher.Constraint("Coincident", 11, 2, 12, 1),
    Sketcher.Constraint("Coincident", 12, 2, 13, 1),
    Sketcher.Constraint("Coincident", 13, 2, 14, 1),
    Sketcher.Constraint("Coincident", 14, 2, 15, 1),
    Sketcher.Constraint("Coincident", 15, 2, 8, 1),
    Sketcher.Constraint("Horizontal", 0),
    Sketcher.Constraint("Vertical", 2),
    Sketcher.Constraint("Horizontal", 4),
    Sketcher.Constraint("Vertical", 6),
    Sketcher.Constraint("Horizontal", 8),
    Sketcher.Constraint("Vertical", 10),
    Sketcher.Constraint("Horizontal", 12),
    Sketcher.Constraint("Vertical", 14),
    Sketcher.Constraint("Coincident", 3, 3, 1, 3),
    Sketcher.Constraint("Coincident", 5, 3, 1, 3),
    Sketcher.Constraint("Coincident", 7, 3, 1, 3),
    Sketcher.Constraint("Coincident", 11, 3, 9, 3),
    Sketcher.Constraint("Coincident", 13, 3, 9, 3),
    Sketcher.Constraint("Coincident", 15, 3, 9, 3),
    Sketcher.Constraint("Equal", 1, 3),
    Sketcher.Constraint("Equal", 3, 5),
    Sketcher.Constraint("Equal", 5, 7),
    Sketcher.Constraint("Equal", 7, 9),
    Sketcher.Constraint("Equal", 9, 11),
    Sketcher.Constraint("Equal", 11, 13),
    Sketcher.Constraint("Equal", 13, 15),
    Sketcher.Constraint("Horizontal", 2, 2, 5, 2),
    Sketcher.Constraint("Horizontal", 10, 2, 13, 2),
    Sketcher.Constraint("Vertical", 0, 2, 3, 2),
    Sketcher.Constraint("Vertical", 8, 2, 11, 2),
    Sketcher.Constraint("Equal", 4, 8),
    Sketcher.Constraint("Equal", 12, 2),
    Sketcher.Constraint("Equal", 6, 10),
    Sketcher.Constraint("Radius", 1, Q("19 mm")),
    Sketcher.Constraint("DistanceX", -1, 1, 1, 3, Q("36 mm")),
    Sketcher.Constraint("DistanceY", -1, 1, 9, 3, Q("36 mm")),
    Sketcher.Constraint("DistanceX", -1, 1, 1, 2, Q("20 mm")),
    Sketcher.Constraint("DistanceY", -1, 1, 1, 3, Q("78.3 mm")),
    Sketcher.Constraint("DistanceX", -1, 1, 9, 3, Q("141.8 mm")),
])
sketch10.setExpression("Constraints[44]", "Params.sketch10_radius")
pocket3 = body.newObject("PartDesign::Pocket", "Pocket002")
pocket3.Profile = sketch10
pocket3.setExpression("Length", "Params.pocket3_length")

doc.recompute()
